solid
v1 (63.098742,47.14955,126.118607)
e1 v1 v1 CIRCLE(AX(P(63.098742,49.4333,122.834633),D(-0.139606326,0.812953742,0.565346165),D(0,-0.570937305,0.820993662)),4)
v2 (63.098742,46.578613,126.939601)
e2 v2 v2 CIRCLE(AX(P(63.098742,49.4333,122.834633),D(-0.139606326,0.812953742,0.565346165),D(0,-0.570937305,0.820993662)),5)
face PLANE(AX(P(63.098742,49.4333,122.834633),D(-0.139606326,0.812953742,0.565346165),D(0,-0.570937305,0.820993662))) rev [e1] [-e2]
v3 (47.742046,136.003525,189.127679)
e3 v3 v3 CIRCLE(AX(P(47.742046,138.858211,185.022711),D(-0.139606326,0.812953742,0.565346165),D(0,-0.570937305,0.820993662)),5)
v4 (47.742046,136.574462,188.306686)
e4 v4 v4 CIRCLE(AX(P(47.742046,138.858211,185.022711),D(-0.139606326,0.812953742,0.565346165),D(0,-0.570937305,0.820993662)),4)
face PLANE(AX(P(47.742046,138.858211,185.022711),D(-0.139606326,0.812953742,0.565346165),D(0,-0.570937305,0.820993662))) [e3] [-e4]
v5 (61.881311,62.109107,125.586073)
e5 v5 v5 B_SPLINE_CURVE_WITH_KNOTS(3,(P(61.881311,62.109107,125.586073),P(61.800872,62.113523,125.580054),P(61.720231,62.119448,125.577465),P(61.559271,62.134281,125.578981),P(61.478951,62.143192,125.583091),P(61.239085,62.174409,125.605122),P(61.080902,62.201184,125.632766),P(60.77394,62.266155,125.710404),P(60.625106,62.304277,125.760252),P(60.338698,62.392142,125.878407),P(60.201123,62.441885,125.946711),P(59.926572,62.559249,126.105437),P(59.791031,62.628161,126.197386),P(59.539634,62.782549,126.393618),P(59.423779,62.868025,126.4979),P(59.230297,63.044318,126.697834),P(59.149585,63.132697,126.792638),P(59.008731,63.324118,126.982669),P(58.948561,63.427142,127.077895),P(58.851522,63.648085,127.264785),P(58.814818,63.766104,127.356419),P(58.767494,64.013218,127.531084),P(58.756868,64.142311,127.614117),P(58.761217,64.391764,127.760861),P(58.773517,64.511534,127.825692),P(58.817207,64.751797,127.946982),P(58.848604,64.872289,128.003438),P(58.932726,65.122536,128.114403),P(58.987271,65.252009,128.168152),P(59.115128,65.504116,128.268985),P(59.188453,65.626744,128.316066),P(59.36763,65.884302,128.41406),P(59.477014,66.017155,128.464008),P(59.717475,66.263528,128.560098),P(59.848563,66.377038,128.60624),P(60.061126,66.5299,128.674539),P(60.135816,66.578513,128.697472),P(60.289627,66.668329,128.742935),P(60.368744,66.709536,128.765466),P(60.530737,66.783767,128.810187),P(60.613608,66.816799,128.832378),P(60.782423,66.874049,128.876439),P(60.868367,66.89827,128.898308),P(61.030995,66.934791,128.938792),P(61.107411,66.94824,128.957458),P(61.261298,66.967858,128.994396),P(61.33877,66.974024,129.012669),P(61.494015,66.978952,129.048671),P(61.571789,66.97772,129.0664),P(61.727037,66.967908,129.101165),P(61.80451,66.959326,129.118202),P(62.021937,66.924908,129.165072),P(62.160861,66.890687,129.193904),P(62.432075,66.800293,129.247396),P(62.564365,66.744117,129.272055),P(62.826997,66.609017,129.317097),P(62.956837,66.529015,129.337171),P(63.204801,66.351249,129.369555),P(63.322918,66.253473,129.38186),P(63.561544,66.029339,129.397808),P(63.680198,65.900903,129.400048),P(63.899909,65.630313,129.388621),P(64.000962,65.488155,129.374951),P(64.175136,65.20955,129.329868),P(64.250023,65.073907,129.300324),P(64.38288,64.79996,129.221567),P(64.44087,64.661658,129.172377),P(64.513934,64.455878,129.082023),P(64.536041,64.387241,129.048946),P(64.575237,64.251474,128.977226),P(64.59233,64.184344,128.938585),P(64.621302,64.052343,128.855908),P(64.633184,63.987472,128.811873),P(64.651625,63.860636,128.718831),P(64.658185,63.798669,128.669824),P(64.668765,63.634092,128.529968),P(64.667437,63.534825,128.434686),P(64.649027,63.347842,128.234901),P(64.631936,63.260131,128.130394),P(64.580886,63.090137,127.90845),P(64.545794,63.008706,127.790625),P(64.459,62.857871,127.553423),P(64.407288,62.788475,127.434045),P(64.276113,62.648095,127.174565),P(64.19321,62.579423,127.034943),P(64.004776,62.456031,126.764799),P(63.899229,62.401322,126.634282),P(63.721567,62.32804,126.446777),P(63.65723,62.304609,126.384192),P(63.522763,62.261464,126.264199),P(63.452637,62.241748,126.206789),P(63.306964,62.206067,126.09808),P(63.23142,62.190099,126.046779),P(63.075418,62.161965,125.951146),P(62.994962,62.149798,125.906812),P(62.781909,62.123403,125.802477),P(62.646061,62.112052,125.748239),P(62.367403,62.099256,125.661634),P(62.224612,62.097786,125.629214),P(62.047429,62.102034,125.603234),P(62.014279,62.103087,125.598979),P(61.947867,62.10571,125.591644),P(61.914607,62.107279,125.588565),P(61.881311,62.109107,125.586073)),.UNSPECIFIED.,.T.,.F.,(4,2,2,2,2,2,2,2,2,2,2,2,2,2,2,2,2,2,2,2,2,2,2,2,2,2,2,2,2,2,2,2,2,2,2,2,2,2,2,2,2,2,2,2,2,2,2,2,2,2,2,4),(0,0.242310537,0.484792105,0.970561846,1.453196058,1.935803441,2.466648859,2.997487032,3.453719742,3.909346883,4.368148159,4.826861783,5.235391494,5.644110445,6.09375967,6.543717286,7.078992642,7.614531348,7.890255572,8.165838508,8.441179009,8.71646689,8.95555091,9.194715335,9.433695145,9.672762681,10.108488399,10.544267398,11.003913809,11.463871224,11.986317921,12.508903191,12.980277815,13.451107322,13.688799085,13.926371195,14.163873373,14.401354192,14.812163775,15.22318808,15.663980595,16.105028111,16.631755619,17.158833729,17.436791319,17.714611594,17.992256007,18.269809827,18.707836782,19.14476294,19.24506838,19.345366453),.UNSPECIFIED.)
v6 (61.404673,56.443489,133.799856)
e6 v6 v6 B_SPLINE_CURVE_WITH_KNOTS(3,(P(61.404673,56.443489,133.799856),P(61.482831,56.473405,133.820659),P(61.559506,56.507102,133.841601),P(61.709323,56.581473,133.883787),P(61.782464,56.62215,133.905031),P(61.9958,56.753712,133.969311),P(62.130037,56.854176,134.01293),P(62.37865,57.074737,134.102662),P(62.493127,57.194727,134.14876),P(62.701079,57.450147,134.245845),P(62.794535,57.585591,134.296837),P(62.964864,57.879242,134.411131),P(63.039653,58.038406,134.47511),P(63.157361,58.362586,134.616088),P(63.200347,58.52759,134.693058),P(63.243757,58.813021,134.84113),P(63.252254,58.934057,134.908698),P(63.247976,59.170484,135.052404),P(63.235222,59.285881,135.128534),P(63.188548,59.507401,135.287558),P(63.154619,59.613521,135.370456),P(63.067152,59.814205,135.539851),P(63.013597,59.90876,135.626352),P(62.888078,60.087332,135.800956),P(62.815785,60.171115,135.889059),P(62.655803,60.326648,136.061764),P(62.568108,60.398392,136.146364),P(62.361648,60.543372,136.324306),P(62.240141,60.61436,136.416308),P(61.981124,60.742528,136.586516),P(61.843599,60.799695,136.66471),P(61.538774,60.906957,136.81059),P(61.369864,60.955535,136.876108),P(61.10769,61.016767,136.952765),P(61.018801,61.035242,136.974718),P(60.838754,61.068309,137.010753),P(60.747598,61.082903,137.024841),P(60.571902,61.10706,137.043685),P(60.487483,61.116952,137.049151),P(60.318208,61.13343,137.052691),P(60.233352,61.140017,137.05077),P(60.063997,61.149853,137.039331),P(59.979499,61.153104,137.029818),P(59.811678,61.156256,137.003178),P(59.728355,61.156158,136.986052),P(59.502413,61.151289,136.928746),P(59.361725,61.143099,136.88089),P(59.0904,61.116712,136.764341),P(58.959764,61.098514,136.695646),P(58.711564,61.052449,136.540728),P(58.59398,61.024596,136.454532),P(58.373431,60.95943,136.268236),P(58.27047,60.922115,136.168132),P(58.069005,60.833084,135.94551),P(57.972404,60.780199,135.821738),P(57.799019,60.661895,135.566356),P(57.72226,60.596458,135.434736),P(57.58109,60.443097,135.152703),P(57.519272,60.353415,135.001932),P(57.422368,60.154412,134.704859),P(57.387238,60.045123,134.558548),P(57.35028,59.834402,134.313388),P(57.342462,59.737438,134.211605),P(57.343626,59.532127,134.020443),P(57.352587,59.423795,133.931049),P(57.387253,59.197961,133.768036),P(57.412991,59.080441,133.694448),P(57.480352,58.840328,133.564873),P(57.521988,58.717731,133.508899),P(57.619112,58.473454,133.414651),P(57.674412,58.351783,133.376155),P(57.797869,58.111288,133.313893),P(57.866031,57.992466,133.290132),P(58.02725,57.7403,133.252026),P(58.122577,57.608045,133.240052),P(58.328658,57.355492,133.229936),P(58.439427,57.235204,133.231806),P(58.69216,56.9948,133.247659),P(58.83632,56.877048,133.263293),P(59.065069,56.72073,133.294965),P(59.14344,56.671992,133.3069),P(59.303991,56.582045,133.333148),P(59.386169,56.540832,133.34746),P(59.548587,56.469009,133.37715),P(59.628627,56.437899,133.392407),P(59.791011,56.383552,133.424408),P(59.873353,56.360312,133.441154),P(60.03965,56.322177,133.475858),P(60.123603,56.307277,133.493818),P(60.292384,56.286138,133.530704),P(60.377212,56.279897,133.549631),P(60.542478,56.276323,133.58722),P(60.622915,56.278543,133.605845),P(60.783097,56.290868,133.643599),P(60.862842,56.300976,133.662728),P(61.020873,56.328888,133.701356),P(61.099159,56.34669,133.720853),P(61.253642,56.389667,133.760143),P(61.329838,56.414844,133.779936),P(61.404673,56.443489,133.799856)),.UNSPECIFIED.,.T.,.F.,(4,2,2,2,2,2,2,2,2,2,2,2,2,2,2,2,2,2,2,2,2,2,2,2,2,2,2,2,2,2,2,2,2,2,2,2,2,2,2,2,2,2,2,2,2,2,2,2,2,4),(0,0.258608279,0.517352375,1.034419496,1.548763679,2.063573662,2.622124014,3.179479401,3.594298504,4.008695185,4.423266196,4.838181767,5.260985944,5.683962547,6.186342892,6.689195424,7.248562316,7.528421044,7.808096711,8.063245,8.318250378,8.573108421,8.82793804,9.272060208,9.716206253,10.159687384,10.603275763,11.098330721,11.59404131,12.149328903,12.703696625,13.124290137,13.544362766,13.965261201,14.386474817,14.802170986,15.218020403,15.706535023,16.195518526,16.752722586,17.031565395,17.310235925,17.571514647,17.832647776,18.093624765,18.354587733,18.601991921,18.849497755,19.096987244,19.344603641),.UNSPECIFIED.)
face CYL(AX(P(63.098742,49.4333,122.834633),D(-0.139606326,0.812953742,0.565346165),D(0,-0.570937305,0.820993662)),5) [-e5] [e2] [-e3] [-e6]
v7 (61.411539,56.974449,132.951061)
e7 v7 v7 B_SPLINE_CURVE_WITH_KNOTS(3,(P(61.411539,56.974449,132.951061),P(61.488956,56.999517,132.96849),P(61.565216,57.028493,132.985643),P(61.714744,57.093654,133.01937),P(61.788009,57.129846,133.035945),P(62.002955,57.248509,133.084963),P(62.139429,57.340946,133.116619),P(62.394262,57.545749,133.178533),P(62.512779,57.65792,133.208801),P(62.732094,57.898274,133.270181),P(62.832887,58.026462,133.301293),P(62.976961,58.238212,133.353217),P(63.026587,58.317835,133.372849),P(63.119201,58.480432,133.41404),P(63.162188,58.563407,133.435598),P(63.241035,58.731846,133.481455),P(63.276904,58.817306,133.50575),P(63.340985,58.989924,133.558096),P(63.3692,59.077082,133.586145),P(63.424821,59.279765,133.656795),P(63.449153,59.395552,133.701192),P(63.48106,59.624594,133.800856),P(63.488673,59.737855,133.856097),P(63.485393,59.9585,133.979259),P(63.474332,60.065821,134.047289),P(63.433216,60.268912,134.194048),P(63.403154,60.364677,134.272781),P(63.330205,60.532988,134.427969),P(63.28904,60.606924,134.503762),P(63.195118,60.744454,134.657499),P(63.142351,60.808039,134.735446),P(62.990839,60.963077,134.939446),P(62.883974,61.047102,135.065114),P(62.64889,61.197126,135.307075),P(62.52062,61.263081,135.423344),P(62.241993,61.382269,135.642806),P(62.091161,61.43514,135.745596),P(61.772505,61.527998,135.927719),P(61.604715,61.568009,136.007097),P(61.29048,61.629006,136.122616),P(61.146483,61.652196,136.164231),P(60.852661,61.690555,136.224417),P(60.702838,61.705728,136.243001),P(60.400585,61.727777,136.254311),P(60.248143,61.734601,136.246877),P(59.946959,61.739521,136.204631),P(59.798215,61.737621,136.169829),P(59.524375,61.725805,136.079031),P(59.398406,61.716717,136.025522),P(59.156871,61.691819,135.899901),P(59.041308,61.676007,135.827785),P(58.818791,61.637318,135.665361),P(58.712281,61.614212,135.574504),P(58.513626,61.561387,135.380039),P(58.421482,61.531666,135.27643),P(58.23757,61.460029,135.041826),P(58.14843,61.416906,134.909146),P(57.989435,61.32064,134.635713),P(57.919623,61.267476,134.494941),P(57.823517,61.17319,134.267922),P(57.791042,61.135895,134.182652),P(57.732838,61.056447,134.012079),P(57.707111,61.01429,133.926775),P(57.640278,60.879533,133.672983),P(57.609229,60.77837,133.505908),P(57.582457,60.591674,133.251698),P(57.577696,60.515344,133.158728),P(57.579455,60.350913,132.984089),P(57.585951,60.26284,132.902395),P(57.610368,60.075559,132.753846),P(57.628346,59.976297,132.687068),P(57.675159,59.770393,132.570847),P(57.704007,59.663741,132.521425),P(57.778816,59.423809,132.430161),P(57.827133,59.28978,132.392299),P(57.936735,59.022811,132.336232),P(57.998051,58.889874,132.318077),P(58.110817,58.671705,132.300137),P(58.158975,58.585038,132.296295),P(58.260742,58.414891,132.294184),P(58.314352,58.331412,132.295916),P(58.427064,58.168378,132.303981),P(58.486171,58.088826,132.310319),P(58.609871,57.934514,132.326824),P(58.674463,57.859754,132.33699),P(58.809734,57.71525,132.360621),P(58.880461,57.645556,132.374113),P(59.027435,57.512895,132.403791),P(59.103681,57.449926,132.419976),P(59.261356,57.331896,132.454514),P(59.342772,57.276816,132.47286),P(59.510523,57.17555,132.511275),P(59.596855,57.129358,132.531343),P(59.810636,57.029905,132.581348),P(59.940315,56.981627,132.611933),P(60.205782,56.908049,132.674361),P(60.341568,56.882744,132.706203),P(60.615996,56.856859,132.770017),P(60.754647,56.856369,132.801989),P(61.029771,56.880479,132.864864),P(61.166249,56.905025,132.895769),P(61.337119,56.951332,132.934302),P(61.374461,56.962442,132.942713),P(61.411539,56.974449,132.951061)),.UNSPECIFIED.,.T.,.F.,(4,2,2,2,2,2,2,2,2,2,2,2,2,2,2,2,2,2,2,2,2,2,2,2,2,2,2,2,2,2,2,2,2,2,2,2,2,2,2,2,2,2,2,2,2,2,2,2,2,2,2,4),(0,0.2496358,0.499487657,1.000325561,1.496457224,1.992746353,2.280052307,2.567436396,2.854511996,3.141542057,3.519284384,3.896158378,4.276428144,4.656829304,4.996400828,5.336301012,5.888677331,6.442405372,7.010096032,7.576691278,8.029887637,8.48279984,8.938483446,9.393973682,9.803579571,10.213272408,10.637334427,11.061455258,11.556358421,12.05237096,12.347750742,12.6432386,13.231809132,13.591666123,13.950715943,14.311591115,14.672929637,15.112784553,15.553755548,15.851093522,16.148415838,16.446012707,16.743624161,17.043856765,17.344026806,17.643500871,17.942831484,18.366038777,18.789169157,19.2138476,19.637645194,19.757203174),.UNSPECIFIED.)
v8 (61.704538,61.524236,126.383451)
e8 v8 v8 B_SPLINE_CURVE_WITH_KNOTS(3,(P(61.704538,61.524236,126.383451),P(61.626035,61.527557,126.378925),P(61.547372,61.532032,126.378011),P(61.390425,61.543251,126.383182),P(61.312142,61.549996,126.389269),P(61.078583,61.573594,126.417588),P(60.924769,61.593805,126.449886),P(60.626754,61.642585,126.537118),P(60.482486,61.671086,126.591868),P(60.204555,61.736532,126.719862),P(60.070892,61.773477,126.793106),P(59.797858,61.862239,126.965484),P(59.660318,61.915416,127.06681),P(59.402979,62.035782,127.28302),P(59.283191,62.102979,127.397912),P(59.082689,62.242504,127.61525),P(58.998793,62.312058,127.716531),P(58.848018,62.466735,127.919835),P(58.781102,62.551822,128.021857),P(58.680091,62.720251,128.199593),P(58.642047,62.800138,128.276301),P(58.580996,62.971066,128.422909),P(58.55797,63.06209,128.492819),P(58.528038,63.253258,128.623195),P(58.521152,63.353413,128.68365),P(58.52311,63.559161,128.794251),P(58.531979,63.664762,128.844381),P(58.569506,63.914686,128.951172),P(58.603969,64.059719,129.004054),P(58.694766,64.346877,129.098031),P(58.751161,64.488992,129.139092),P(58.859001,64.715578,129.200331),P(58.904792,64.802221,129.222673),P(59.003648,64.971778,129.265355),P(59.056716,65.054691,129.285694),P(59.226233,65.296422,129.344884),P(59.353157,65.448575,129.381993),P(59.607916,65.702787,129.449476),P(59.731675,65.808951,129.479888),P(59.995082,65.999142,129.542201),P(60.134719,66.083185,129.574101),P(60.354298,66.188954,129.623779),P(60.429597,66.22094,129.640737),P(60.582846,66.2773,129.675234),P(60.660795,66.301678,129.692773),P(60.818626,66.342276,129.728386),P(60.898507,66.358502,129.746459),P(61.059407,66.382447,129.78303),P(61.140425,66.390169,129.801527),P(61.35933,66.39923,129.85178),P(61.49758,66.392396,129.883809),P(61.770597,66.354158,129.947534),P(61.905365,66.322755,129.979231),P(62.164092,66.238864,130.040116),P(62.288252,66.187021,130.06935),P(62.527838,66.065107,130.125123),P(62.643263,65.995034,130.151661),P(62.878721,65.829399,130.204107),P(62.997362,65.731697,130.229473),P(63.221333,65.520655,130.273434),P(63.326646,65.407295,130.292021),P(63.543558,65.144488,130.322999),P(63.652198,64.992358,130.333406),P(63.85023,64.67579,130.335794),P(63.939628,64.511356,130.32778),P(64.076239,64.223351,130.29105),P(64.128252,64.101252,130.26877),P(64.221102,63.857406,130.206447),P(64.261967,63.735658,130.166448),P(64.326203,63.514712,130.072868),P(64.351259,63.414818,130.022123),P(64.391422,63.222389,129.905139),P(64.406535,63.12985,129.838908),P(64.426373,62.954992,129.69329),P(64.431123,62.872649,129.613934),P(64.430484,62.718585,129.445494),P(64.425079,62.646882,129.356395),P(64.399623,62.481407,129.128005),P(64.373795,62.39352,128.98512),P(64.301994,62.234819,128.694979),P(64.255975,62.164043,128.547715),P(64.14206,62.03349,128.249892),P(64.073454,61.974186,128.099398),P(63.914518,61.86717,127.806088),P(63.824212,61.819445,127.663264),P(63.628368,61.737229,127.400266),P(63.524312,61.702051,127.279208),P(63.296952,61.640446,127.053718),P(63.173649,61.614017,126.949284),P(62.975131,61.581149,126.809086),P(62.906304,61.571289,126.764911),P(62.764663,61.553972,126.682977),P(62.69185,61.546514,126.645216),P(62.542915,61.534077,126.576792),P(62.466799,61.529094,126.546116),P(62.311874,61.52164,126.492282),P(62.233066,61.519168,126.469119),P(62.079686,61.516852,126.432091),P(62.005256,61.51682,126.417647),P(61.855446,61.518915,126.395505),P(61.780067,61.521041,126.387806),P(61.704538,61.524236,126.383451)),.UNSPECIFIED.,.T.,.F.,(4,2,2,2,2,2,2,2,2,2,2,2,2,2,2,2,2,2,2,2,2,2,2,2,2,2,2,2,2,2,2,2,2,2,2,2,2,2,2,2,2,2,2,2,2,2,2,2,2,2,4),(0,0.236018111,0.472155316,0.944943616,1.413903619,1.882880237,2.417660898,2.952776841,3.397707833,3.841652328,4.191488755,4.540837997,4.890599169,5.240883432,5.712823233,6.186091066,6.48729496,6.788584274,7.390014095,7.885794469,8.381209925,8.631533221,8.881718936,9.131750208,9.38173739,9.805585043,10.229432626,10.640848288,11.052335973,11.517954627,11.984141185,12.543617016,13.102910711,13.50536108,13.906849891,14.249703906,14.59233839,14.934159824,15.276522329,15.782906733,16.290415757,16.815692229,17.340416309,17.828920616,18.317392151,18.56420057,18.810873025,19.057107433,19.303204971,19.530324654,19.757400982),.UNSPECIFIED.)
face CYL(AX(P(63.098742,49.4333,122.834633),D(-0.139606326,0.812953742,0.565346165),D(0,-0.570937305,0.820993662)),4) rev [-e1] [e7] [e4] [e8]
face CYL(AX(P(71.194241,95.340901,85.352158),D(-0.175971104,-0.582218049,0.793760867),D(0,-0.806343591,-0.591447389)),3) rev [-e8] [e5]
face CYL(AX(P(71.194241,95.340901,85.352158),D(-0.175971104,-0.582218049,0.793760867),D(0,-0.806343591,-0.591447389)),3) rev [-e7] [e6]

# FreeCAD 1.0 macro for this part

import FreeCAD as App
import Part
import Sketcher
Q = App.Units.Quantity

doc = App.newDocument("Part")
body = doc.addObject("PartDesign::Body", "Body")

# Sketch on an angled plane
sketch1 = body.newObject("Sketcher::SketchObject", "Sketch")
sketch1.Placement = App.Placement(App.Vector(-18.263591, 106.352308, 73.959767), App.Rotation(App.Vector(0.989737493, 0.132142804, 0.054387259), App.Vector(-0.030492102, 0.567137101, -0.82305877), App.Vector(-0.139606326, 0.812953742, 0.565346165), "ZXY"))
sketch1.addGeometry(Part.Circle(App.Vector(75.7, -75, 0), App.Vector(0, 0, 1), 5), False)
sketch1.addGeometry(Part.Circle(App.Vector(75.7, -75, 0), App.Vector(0, 0, 1), 4), False)
sketch1.addConstraint(Sketcher.Constraint("Coincident", 1, 3, 0, 3))
sketch1.addConstraint(Sketcher.Constraint("Diameter", 0, Q("10 mm")))
sketch1.addConstraint(Sketcher.Constraint("Diameter", 1, Q("8 mm")))
sketch1.addConstraint(Sketcher.Constraint("DistanceX", -1, 1, 0, 3, Q("75.664084 mm")))
sketch1.addConstraint(Sketcher.Constraint("DistanceY", 0, 3, -1, 1, Q("74.988677 mm")))
pad1 = body.newObject("PartDesign::Pad", "Pad")
pad1.Profile = sketch1
pad1.Type = "TwoLengths"
pad1.Length = 80
pad1.Length2 = 30

# Sketch on an angled plane
sketch2 = body.newObject("Sketcher::SketchObject", "Sketch001")
sketch2.Placement = App.Placement(App.Vector(167.461193, -27.829766, 89.299122), App.Rotation(App.Vector(0.974445609, 0.011329449, 0.22433769), App.Vector(-0.139606325, 0.812953742, 0.565346166), App.Vector(-0.175971104, -0.582218049, 0.793760867), "ZXY"))
sketch2.addGeometry(Part.Circle(App.Vector(-93.3, 111.3, 0), App.Vector(0, 0, 1), 3), False)
sketch2.addConstraint(Sketcher.Constraint("Diameter", 0, Q("6 mm")))
sketch2.addConstraint(Sketcher.Constraint("DistanceY", -1, 1, 0, 3, Q("111.340129 mm")))
sketch2.addConstraint(Sketcher.Constraint("DistanceX", 0, 3, -1, 1, Q("93.296905 mm")))
pocket1 = body.newObject("PartDesign::Pocket", "Pocket")
pocket1.Profile = sketch2
pocket1.Type = "ThroughAll"
pocket1.Midplane = True

doc.recompute()
